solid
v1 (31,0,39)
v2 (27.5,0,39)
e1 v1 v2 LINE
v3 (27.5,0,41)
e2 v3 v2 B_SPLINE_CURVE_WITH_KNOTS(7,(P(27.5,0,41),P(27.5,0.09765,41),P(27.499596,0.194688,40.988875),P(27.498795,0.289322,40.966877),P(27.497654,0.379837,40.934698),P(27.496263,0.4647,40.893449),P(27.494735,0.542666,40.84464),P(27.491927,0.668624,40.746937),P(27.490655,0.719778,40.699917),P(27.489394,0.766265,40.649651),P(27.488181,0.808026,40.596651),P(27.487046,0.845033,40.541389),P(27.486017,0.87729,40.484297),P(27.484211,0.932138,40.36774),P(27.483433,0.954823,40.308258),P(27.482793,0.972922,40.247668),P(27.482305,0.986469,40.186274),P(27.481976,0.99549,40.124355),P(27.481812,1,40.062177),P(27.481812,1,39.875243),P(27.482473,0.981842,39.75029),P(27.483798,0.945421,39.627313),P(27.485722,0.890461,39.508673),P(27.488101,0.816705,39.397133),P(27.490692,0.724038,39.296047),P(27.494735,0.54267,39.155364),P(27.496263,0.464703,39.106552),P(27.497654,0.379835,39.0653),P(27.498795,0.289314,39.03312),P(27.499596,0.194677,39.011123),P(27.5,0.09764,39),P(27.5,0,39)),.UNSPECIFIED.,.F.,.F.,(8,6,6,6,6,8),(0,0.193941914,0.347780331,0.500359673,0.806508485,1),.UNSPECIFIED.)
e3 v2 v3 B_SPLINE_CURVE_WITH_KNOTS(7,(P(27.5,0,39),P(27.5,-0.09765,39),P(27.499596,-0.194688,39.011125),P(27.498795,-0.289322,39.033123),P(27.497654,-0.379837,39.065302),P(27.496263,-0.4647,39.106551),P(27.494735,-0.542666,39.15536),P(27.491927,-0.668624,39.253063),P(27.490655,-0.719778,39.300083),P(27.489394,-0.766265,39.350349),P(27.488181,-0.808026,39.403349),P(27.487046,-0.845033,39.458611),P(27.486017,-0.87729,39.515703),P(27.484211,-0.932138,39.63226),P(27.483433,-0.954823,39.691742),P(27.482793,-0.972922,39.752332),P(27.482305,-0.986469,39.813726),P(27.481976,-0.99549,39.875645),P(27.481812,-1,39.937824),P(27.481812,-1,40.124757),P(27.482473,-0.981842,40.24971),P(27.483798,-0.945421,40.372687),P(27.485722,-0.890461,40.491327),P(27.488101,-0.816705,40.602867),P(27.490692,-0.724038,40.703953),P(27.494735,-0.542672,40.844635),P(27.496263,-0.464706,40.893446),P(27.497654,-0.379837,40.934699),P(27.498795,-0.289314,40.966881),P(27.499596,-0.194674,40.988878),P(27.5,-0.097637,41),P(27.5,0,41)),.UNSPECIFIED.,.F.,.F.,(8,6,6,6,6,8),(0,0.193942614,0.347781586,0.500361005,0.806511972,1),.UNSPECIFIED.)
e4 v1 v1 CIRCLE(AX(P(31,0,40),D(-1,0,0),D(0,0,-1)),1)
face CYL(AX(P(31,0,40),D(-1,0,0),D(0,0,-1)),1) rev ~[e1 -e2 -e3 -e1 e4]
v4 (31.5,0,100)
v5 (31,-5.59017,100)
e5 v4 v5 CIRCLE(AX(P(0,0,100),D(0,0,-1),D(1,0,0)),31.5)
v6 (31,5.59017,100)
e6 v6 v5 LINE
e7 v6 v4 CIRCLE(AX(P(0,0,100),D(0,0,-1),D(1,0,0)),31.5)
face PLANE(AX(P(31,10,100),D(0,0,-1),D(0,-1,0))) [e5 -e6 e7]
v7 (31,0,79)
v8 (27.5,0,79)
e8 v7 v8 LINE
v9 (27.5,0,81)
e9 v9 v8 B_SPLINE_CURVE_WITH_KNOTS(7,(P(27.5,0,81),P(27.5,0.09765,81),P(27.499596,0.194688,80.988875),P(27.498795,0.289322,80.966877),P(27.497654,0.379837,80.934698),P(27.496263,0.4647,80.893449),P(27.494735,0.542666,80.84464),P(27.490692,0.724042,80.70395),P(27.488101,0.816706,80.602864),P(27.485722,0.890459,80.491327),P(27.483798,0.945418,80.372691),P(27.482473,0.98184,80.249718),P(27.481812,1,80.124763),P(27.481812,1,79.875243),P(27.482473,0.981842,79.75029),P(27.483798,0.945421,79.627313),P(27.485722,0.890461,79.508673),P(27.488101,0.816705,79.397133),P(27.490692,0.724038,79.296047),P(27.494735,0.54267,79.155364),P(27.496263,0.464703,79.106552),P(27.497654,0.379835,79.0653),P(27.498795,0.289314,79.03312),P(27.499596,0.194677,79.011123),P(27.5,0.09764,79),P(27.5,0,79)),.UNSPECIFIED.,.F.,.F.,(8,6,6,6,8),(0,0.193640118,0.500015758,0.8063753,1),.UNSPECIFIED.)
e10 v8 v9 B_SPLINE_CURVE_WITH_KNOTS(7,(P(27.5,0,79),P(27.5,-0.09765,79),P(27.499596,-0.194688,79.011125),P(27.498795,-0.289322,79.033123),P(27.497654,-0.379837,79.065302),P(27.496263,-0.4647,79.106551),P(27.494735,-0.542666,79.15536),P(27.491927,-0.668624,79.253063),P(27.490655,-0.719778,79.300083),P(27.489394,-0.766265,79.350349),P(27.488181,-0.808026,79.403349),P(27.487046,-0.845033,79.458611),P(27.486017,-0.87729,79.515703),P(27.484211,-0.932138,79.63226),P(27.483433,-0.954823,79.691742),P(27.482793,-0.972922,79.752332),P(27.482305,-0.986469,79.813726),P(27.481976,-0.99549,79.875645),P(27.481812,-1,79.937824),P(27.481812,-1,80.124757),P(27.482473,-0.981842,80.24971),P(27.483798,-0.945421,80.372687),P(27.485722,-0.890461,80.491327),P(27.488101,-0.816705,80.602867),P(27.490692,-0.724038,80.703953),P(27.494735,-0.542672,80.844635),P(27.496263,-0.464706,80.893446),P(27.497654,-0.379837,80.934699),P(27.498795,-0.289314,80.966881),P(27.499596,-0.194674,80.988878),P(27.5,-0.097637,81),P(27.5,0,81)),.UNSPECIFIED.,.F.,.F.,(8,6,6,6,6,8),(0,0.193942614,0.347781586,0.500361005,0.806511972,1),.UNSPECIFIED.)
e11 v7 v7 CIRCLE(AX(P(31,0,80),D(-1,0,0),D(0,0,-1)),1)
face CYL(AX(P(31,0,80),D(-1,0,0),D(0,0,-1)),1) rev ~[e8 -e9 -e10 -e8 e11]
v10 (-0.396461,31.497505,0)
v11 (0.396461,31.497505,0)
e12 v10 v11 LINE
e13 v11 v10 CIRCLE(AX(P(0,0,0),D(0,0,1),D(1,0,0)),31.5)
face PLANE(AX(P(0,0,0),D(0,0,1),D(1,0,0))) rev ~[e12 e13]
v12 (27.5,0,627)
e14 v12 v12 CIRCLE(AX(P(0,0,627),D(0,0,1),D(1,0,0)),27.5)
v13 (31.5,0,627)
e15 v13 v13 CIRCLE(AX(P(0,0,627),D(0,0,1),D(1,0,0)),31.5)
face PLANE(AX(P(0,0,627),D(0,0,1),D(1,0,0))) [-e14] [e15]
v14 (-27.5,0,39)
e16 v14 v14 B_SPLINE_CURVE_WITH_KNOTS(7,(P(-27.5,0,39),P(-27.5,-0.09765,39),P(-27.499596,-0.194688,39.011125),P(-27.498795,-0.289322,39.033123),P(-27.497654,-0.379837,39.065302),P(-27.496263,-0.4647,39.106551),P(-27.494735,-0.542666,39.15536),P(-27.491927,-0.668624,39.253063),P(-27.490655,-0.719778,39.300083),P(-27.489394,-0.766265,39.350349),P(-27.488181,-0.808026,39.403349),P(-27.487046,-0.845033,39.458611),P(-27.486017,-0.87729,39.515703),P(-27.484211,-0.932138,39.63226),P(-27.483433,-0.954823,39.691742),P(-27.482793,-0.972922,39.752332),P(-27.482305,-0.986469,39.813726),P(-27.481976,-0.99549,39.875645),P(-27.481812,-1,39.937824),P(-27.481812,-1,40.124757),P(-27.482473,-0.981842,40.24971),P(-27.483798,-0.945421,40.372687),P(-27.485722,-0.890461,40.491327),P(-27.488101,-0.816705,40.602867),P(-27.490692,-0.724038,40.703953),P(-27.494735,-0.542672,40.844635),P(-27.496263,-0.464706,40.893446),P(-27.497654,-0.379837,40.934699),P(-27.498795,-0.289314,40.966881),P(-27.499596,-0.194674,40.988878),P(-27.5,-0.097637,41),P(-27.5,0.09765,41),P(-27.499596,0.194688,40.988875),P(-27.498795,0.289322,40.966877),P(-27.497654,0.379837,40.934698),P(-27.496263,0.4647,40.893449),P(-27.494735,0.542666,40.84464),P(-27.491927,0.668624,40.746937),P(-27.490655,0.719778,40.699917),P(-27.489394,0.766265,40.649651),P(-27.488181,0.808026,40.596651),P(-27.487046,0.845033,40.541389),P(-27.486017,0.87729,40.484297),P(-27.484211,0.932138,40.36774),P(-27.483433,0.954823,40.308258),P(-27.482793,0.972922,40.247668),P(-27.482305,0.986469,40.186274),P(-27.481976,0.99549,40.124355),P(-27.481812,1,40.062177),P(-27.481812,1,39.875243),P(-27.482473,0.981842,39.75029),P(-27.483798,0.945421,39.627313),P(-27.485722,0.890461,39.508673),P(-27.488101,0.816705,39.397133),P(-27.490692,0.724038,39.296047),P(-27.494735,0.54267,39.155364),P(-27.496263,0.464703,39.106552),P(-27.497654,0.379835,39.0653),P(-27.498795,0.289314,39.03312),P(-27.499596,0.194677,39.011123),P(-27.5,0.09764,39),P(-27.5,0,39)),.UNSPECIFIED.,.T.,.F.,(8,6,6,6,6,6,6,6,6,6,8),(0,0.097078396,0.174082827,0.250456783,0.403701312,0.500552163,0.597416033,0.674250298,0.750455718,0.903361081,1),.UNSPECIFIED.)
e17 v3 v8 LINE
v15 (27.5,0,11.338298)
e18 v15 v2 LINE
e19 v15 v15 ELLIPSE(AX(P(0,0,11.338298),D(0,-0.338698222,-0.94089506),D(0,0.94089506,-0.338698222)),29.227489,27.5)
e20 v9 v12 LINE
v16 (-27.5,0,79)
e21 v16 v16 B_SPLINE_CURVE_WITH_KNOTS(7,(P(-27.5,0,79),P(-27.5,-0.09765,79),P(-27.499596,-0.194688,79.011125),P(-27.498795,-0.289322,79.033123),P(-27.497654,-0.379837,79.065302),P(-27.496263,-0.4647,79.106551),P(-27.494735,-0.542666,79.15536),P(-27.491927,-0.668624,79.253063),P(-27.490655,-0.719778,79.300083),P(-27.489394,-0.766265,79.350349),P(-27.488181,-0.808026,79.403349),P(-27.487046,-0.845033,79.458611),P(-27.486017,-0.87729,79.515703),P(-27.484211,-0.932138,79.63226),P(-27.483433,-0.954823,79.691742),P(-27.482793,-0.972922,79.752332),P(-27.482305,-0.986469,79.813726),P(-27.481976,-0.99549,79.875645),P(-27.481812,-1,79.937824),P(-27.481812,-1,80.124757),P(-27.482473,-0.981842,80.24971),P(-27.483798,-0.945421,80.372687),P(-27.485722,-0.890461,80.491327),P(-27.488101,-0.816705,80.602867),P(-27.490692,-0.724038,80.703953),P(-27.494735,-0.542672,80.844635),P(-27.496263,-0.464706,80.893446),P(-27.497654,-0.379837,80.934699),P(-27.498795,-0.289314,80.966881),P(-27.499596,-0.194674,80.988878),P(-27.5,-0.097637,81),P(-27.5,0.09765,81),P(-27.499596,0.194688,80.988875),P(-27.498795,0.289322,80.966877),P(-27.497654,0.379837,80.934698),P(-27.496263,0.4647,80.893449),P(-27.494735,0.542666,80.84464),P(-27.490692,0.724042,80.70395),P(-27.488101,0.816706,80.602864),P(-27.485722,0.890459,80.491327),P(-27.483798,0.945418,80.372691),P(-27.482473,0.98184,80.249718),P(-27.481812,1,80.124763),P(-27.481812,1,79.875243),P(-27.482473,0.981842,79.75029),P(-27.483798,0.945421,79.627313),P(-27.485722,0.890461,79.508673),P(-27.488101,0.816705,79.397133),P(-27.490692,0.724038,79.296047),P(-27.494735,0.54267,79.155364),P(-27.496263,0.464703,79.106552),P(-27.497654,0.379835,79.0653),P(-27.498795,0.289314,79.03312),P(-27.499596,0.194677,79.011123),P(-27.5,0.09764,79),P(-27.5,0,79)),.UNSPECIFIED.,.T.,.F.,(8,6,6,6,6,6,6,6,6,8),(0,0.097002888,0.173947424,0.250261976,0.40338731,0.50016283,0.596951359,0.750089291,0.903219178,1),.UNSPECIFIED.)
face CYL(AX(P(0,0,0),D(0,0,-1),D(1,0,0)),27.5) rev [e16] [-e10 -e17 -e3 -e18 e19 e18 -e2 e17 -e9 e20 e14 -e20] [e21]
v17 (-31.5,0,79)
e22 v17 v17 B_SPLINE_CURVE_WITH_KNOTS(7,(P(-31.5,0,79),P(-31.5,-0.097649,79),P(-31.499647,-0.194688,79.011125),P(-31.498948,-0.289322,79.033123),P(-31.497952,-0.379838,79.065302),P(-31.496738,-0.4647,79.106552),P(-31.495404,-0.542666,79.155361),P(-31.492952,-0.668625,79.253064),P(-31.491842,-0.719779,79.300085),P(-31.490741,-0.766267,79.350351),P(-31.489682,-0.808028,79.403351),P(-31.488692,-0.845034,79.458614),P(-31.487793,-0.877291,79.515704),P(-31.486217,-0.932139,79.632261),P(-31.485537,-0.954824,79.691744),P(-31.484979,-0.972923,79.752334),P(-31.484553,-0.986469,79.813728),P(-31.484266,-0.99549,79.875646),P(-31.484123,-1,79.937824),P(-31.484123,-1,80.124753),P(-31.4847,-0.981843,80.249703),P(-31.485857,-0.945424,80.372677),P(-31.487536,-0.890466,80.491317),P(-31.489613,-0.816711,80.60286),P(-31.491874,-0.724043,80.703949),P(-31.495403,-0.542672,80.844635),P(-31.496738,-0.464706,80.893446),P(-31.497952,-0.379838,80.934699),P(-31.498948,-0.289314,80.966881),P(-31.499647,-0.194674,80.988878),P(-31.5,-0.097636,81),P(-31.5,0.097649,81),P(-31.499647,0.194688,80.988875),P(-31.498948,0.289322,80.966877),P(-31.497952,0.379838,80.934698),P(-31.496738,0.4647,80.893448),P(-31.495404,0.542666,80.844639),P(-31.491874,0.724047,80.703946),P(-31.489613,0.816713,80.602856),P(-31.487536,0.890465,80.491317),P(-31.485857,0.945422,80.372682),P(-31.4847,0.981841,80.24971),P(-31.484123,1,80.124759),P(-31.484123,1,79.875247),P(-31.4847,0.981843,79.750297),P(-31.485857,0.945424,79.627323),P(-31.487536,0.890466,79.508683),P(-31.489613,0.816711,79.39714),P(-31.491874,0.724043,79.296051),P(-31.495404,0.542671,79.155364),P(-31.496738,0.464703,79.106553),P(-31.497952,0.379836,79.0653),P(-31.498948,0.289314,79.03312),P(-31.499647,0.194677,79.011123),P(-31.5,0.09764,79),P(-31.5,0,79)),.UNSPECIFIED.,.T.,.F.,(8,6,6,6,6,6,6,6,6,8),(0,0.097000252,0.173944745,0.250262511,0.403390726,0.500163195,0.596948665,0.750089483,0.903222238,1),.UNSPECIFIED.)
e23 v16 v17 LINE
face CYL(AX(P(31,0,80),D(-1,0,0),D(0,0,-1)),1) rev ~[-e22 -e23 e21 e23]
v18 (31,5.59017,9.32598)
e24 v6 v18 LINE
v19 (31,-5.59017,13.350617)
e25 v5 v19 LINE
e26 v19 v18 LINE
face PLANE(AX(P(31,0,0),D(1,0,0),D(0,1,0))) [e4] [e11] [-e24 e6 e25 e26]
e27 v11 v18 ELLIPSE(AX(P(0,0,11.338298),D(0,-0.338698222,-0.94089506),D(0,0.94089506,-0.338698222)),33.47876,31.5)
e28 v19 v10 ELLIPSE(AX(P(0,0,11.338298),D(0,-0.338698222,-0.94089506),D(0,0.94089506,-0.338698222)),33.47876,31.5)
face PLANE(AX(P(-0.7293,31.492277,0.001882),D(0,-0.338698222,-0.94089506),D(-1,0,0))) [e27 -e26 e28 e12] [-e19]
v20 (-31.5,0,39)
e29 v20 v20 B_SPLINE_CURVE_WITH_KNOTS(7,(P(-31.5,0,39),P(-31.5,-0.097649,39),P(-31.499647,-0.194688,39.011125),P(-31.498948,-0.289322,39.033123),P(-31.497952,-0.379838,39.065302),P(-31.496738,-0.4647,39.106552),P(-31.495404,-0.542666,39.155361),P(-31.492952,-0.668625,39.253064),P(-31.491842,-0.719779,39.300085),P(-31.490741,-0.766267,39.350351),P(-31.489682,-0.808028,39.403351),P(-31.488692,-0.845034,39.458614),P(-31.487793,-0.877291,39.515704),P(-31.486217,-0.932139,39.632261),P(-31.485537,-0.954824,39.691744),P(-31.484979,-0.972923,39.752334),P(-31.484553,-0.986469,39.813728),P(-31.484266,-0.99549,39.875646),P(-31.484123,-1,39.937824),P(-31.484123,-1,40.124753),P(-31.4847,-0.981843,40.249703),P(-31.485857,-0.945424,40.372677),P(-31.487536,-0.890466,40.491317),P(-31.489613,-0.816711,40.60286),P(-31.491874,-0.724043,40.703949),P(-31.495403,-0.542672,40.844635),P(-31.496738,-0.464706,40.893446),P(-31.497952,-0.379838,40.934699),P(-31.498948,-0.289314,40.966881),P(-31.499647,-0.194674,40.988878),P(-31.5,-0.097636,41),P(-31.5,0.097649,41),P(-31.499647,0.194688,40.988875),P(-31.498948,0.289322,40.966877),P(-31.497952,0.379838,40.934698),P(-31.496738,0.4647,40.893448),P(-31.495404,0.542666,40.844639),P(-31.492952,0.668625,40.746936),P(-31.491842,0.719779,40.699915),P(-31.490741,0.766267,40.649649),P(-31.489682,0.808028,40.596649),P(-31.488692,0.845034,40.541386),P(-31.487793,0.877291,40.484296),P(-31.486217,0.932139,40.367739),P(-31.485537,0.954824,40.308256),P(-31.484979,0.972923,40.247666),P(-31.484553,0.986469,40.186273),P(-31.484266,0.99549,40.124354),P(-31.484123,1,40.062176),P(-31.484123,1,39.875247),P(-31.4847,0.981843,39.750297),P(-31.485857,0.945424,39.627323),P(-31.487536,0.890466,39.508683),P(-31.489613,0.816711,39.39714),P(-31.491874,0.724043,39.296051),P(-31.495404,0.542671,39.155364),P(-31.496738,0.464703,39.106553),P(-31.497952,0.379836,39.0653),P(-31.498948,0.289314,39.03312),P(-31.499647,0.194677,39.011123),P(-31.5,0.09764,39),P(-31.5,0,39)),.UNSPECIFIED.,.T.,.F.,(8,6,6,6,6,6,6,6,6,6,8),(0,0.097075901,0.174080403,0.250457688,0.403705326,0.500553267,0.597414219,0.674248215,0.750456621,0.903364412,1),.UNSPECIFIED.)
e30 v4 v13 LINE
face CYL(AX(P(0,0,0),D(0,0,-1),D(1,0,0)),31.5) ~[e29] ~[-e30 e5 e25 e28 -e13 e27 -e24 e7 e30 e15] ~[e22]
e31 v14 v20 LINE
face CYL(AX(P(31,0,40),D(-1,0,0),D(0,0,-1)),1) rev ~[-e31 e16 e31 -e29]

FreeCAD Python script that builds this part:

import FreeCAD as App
import Part
import Sketcher

doc = App.newDocument("Part")
body = doc.addObject("PartDesign::Body", "Body")

# Sketch on XY plane
sketch1 = body.newObject("Sketcher::SketchObject", "Sketch")
sketch1.AttachmentSupport = (doc.getObject("XY_Plane"), [""])
sketch1.MapMode = "FlatFace"
sketch1.addGeometry(Part.Circle(App.Vector(0, 0, 0), App.Vector(0, 0, 1), 32), False)
sketch1.addGeometry(Part.Circle(App.Vector(0, 0, 0), App.Vector(0, 0, 1), 28), False)
sketch1.addConstraint(Sketcher.Constraint("Coincident", 0, 3, -1, 1))
sketch1.addConstraint(Sketcher.Constraint("Coincident", 1, 3, -1, 1))
sketch1.addConstraint(Sketcher.Constraint("Diameter", 0, 63.0))
sketch1.addConstraint(Sketcher.Constraint("Diameter", 1, 55.0))
pad1 = body.newObject("PartDesign::Pad", "Pad")
pad1.Profile = sketch1
pad1.Length = 627

# Sketch on YZ plane
sketch2 = body.newObject("Sketcher::SketchObject", "Sketch001")
sketch2.AttachmentSupport = (doc.getObject("YZ_Plane"), [""])
sketch2.MapMode = "FlatFace"
sketch2.AttachmentOffset = App.Placement(App.Vector(0, 0, 31), App.Rotation())
sketch2.addGeometry(Part.LineSegment(App.Vector(-10, 100, 0), App.Vector(-10, 0, 0)), False)
sketch2.addGeometry(Part.LineSegment(App.Vector(-10, 0, 0), App.Vector(10, 0, 0)), False)
sketch2.addGeometry(Part.LineSegment(App.Vector(10, 0, 0), App.Vector(10, 100, 0)), False)
sketch2.addGeometry(Part.LineSegment(App.Vector(10, 100, 0), App.Vector(-10, 100, 0)), False)
sketch2.addConstraint(Sketcher.Constraint("Coincident", 0, 2, 1, 1))
sketch2.addConstraint(Sketcher.Constraint("Coincident", 1, 2, 2, 1))
sketch2.addConstraint(Sketcher.Constraint("Coincident", 2, 2, 3, 1))
sketch2.addConstraint(Sketcher.Constraint("Coincident", 3, 2, 0, 1))
sketch2.addConstraint(Sketcher.Constraint("Vertical", 0))
sketch2.addConstraint(Sketcher.Constraint("Horizontal", 1))
sketch2.addConstraint(Sketcher.Constraint("Vertical", 2))
sketch2.addConstraint(Sketcher.Constraint("Horizontal", 3))
sketch2.addConstraint(Sketcher.Constraint("Symmetric", 0, 2, 1, 2, -1, 1))
sketch2.addConstraint(Sketcher.Constraint("DistanceX", 1, 1, 1, 2, 20.0))
sketch2.addConstraint(Sketcher.Constraint("DistanceY", 0, 2, 0, 1, 100.0))
pocket1 = body.newObject("PartDesign::Pocket", "Pocket")
pocket1.Profile = sketch2
pocket1.Length = 25.4
pocket1.Reversed = True

# Sketch on an angled plane
sketch3 = body.newObject("Sketcher::SketchObject", "Sketch002")
sketch3.Placement = App.Placement(App.Vector(-0.7293, 31.4916, 0), App.Rotation(App.Vector(-1, 0, 0), App.Vector(0, 0.94089506, -0.338698222), App.Vector(0, -0.338698222, -0.94089506), "ZXY"))
sketch3.addGeometry(Part.LineSegment(App.Vector(-35, 9, 0), App.Vector(-35, -85, 0)), False)
sketch3.addGeometry(Part.LineSegment(App.Vector(-35, -85, 0), App.Vector(32, -85, 0)), False)
sketch3.addGeometry(Part.LineSegment(App.Vector(32, -85, 0), App.Vector(32, 9, 0)), False)
sketch3.addGeometry(Part.LineSegment(App.Vector(32, 9, 0), App.Vector(-35, 9, 0)), False)
sketch3.addConstraint(Sketcher.Constraint("Coincident", 0, 2, 1, 1))
sketch3.addConstraint(Sketcher.Constraint("Coincident", 1, 2, 2, 1))
sketch3.addConstraint(Sketcher.Constraint("Coincident", 2, 2, 3, 1))
sketch3.addConstraint(Sketcher.Constraint("Coincident", 3, 2, 0, 1))
sketch3.addConstraint(Sketcher.Constraint("Vertical", 0))
sketch3.addConstraint(Sketcher.Constraint("Horizontal", 1))
sketch3.addConstraint(Sketcher.Constraint("Vertical", 2))
sketch3.addConstraint(Sketcher.Constraint("Horizontal", 3))
sketch3.addConstraint(Sketcher.Constraint("DistanceX", 1, 1, 1, 2, 66.5527))
sketch3.addConstraint(Sketcher.Constraint("DistanceY", 0, 2, 0, 1, 93.4143))
sketch3.addConstraint(Sketcher.Constraint("DistanceX", 0, 2, -1, 1, 34.8075))
sketch3.addConstraint(Sketcher.Constraint("DistanceY", 0, 2, -1, 1, 84.5558))
pocket2 = body.newObject("PartDesign::Pocket", "Pocket001")
pocket2.Profile = sketch3
pocket2.Length = 25.4
pocket2.Reversed = True

# Sketch on YZ plane
sketch4 = body.newObject("Sketcher::SketchObject", "Sketch003")
sketch4.AttachmentSupport = (doc.getObject("YZ_Plane"), [""])
sketch4.MapMode = "FlatFace"
sketch4.AttachmentOffset = App.Placement(App.Vector(0, 0, 31), App.Rotation())
sketch4.addGeometry(Part.Circle(App.Vector(0, 80, 0), App.Vector(0, 0, 1), 1), False)
sketch4.addGeometry(Part.Circle(App.Vector(0, 40, 0), App.Vector(0, 0, 1), 1), False)
sketch4.addConstraint(Sketcher.Constraint("Equal", 0, 1))
sketch4.addConstraint(Sketcher.Constraint("PointOnObject", 0, 3, -2))
sketch4.addConstraint(Sketcher.Constraint("PointOnObject", 1, 3, -2))
sketch4.addConstraint(Sketcher.Constraint("Diameter", 0, 2.0))
sketch4.addConstraint(Sketcher.Constraint("DistanceY", -1, 1, 0, 3, 80.0))
sketch4.addConstraint(Sketcher.Constraint("DistanceY", -1, 1, 1, 3, 40.0))
doc.recompute()
hole = body.newObject("PartDesign::Hole", "Hole")
hole.Profile = sketch4
hole.ThreadType = "None"
hole.Diameter = 2
hole.DepthType = "ThroughAll"

doc.recompute()
